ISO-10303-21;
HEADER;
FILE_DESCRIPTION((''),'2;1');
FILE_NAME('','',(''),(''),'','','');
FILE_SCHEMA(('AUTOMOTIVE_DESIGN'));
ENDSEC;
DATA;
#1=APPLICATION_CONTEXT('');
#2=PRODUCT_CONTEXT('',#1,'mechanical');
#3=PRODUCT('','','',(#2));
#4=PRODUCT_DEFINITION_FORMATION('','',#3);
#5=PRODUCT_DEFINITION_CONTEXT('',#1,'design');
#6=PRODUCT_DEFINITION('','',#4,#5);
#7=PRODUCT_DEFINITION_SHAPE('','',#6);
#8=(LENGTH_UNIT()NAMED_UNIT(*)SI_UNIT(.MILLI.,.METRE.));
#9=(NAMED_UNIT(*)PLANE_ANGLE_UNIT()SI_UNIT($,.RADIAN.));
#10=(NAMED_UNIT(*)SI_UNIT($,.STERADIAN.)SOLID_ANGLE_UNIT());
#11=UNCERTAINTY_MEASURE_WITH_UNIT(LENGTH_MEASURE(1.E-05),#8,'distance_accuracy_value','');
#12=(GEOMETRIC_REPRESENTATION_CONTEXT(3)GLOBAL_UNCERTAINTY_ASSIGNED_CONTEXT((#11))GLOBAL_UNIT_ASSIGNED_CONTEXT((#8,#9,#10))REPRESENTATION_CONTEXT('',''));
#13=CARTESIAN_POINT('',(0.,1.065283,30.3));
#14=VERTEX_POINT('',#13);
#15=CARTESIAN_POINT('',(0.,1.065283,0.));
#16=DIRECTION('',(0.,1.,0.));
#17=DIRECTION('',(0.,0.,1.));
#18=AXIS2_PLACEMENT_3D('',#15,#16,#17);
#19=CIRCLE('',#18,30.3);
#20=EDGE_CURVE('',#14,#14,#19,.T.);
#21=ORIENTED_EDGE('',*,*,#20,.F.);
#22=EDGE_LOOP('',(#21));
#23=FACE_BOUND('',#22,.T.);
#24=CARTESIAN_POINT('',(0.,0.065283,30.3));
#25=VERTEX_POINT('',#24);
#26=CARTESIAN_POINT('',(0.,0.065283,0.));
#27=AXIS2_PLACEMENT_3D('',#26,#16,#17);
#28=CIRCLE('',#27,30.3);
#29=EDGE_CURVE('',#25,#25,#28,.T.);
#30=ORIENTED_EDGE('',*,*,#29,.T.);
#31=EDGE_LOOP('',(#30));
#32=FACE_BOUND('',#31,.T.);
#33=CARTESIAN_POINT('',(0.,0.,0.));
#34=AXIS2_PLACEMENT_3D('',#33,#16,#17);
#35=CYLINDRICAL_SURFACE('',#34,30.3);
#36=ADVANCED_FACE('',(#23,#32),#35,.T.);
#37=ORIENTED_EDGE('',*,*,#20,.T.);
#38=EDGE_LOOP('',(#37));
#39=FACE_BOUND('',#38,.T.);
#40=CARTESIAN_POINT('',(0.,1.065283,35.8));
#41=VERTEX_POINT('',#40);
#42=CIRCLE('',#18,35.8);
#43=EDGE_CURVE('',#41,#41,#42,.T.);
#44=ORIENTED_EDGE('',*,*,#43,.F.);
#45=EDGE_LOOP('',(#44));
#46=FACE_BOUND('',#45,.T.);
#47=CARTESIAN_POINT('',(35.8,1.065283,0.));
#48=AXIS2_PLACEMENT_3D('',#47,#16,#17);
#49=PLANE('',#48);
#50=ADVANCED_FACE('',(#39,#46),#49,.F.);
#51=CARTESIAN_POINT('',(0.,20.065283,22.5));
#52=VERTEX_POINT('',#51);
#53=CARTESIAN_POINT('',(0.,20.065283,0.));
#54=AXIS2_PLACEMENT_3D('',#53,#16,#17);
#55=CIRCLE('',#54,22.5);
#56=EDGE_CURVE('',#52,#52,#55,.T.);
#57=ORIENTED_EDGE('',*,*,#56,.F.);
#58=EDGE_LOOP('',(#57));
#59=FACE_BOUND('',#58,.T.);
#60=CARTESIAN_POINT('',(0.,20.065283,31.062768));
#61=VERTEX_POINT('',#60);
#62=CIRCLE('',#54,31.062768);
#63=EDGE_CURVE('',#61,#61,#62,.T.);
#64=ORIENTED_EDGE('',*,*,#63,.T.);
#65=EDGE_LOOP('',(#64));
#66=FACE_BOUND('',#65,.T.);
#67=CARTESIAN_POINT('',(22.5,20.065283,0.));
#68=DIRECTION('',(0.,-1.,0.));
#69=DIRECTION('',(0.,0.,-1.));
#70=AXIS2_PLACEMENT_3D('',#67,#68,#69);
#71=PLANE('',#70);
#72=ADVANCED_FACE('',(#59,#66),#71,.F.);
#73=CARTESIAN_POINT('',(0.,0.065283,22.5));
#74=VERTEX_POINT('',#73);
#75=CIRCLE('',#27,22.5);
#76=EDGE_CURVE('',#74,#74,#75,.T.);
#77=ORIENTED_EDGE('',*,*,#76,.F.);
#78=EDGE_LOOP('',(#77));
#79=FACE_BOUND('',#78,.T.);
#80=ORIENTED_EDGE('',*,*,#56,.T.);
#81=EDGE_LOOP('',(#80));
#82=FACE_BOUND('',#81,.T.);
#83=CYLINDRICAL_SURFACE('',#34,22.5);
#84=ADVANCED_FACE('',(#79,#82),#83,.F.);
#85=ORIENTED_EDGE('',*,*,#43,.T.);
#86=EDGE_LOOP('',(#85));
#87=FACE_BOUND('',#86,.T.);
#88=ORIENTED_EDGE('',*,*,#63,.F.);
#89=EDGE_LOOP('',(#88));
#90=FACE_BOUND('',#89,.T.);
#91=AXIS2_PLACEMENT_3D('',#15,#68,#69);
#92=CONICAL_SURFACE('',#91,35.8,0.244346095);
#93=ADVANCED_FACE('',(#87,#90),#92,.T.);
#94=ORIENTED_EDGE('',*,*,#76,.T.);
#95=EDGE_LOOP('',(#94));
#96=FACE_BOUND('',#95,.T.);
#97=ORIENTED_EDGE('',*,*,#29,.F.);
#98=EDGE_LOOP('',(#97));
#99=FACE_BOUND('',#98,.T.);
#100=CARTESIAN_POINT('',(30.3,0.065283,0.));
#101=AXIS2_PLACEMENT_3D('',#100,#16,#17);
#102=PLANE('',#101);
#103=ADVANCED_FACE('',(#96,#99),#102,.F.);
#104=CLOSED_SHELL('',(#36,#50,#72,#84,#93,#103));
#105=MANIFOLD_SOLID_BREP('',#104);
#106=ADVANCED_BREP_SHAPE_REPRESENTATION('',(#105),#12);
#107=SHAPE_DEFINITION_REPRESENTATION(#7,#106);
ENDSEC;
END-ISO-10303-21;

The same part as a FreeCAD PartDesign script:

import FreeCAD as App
import Part
import Sketcher

V = App.Vector
Q = App.Units.Quantity

doc = App.newDocument("Part")
body = doc.addObject("PartDesign::Body", "Body")

# Sketch on XY plane
sketch1 = body.newObject("Sketcher::SketchObject", "Sketch")
sketch1.AttachmentSupport = (doc.getObject("XY_Plane"), [""])
sketch1.MapMode = "FlatFace"
sketch1.addGeometry([
    Part.LineSegment(V(22.5, 20.065283, 0), V(22.5, 0.065283, 0)),  # 0
    Part.LineSegment(V(22.5, 0.065283, 0), V(30.3, 0.065283, 0)),  # 1
    Part.LineSegment(V(30.3, 0.065283, 0), V(30.3, 1.065283, 0)),  # 2
    Part.LineSegment(V(30.3, 1.065283, 0), V(35.8, 1.065283, 0)),  # 3
    Part.LineSegment(V(35.8, 1.065283, 0), V(31.062768, 20.065283, 0)),  # 4
    Part.LineSegment(V(31.062768, 20.065283, 0), V(22.5, 20.065283, 0)),  # 5
], False)
sketch1.addConstraint([
    Sketcher.Constraint("Coincident", 0, 2, 1, 1),
    Sketcher.Constraint("Coincident", 1, 2, 2, 1),
    Sketcher.Constraint("Coincident", 2, 2, 3, 1),
    Sketcher.Constraint("Coincident", 3, 2, 4, 1),
    Sketcher.Constraint("Coincident", 4, 2, 5, 1),
    Sketcher.Constraint("Coincident", 5, 2, 0, 1),
    Sketcher.Constraint("Vertical", 0),
    Sketcher.Constraint("Horizontal", 1),
    Sketcher.Constraint("Vertical", 2),
    Sketcher.Constraint("Horizontal", 3),
    Sketcher.Constraint("Horizontal", 5),
    Sketcher.Constraint("DistanceY", 0, 2, 0, 1, Q("20 mm")),
    Sketcher.Constraint("DistanceY", 2, 1, 2, 2, Q("1 mm")),
    Sketcher.Constraint("Angle", 4, Q("104 deg")),
    Sketcher.Constraint("DistanceX", 1, 1, 1, 2, Q("7.8 mm")),
    Sketcher.Constraint("DistanceX", 3, 1, 3, 2, Q("5.5 mm")),
    Sketcher.Constraint("DistanceX", -1, 1, 0, 2, Q("22.5 mm")),
    Sketcher.Constraint("DistanceY", -1, 1, 0, 2, Q("0.065283 mm")),
])
revolution = body.newObject("PartDesign::Revolution", "Revolution")
revolution.Profile = sketch1
revolution.ReferenceAxis = (sketch1, ["V_Axis"])
revolution.Angle = 360

doc.recompute()
